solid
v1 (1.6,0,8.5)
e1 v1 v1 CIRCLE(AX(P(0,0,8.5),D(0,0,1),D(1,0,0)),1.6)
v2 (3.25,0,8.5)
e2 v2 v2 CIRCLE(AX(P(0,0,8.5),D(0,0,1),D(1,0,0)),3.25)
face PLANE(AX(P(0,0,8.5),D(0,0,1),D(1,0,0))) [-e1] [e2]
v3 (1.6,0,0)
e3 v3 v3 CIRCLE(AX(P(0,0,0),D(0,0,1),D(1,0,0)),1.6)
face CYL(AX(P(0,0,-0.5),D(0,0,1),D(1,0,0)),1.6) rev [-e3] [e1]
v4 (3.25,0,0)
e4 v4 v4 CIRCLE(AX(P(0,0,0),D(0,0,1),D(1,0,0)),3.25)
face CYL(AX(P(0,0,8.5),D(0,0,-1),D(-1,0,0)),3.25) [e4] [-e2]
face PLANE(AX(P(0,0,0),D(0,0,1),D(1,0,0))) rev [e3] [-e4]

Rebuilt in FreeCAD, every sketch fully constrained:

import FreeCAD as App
import Part
import Sketcher

V = App.Vector

doc = App.newDocument("Part")
body = doc.addObject("PartDesign::Body", "Body")

sketch1 = doc.addObject("Sketcher::SketchObject", "Sketch")
body.addObject(sketch1)
sketch1.AttachmentSupport = (doc.XY_Plane, [""])
sketch1.MapMode = "FlatFace"
sketch1.addGeometry(Part.Circle(V(0, 0, 0), V(0, 0, 1), 3.2), False)
sketch1.addConstraint(Sketcher.Constraint("Coincident", 0, 3, -1, 1))
sketch1.addConstraint(Sketcher.Constraint("Diameter", 0, 6.5))
pad1 = doc.addObject("PartDesign::Pad", "Pad")
body.addObject(pad1)
pad1.Profile = sketch1
pad1.Length = 8.5

sketch2 = doc.addObject("Sketcher::SketchObject", "Sketch001")
body.addObject(sketch2)
sketch2.AttachmentSupport = (doc.XY_Plane, [""])
sketch2.MapMode = "FlatFace"
sketch2.AttachmentOffset = App.Placement(V(0, 0, 8.5), App.Rotation())
sketch2.addGeometry(Part.Circle(V(0, 0, 0), V(0, 0, 1), 1.6), False)
sketch2.addConstraint(Sketcher.Constraint("Coincident", 0, 3, -1, 1))
sketch2.addConstraint(Sketcher.Constraint("Diameter", 0, 3.2))
pocket1 = doc.addObject("PartDesign::Pocket", "Pocket")
body.addObject(pocket1)
pocket1.Profile = sketch2
pocket1.Length = 9

doc.recompute()
